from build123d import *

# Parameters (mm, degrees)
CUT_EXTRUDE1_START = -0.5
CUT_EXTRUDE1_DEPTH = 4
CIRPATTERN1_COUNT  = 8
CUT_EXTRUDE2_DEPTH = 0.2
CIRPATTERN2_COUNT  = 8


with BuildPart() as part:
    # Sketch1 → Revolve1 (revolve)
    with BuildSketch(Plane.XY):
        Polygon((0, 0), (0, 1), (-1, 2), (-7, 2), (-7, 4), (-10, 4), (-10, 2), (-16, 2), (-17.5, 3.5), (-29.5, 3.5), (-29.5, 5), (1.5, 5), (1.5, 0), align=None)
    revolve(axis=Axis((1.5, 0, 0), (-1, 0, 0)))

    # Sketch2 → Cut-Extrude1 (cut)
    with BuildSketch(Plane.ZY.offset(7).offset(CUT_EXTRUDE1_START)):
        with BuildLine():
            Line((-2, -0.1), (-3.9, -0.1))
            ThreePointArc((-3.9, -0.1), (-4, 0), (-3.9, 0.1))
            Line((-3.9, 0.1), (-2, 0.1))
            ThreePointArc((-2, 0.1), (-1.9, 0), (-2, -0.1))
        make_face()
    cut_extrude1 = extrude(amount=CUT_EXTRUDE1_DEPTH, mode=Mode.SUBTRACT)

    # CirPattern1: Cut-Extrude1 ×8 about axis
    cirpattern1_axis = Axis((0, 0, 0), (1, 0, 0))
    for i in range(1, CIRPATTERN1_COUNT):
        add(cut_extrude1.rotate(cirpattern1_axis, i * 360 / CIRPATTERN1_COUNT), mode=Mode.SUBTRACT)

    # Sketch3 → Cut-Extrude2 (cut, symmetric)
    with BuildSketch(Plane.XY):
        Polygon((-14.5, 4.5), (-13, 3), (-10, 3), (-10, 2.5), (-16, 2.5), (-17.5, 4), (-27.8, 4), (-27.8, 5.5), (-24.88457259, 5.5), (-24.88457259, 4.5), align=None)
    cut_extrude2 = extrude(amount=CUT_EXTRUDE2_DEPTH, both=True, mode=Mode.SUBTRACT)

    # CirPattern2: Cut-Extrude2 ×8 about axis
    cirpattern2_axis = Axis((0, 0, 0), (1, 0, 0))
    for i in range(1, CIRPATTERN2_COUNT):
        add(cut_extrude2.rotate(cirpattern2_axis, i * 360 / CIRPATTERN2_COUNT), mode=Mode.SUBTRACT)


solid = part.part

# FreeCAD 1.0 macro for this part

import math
import FreeCAD as App
import Part
import Sketcher
from FreeCAD import Vector
Q = App.Units.Quantity


def add_polygon(sketch, points):
    """Adds a closed chain of lines whose ends are joined by coincident constraints."""
    first, n = sketch.GeometryCount, len(points)
    for a, b in zip(points, points[1:] + points[:1]):
        sketch.addGeometry(Part.LineSegment(App.Vector(*a, 0), App.Vector(*b, 0)), False)
    for i in range(n):
        sketch.addConstraint(Sketcher.Constraint("Coincident", first + i, 2, first + (i + 1) % n, 1))

doc = App.newDocument("Part")
params = doc.addObject("Spreadsheet::Sheet", "Params")
for row, (alias, value) in enumerate([
    ("sketch1_width", "31 mm"),
    ("sketch1_width2", "12 mm"),
    ("sketch1_width3", "6 mm"),
    ("sketch1_width4", "3 mm"),
    ("sketch1_height", "1 mm"),
    ("revolution_angle", "360 deg"),
    ("sketch2_radius", "0.1 mm"),
    ("sketch2_height", "1.9 mm"),
    ("pocket1_length", "4 mm"),
    ("sketch3_width", "6 mm"),
    ("sketch3_width2", "3 mm"),
    ("sketch3_height", "1 mm"),
    ("sketch3_width3", "10.3 mm"),
    ("sketch3_height2", "1.5 mm"),
    ("pocket2_length", "0.4 mm"),
], start=1):
    params.set(f"A{row}", alias)
    params.set(f"B{row}", "=" + value)
    params.setAlias(f"B{row}", alias)

body = doc.addObject("PartDesign::Body", "Body")

sketch1 = body.newObject("Sketcher::SketchObject", "Sketch")
sketch1.AttachmentSupport = (doc.getObject("XY_Plane"), [""])
sketch1.MapMode = "FlatFace"
add_polygon(sketch1, [(0, 1), (0, 0), (1.5, 0), (1.5, 5), (-29.5, 5), (-29.5, 3.5), (-17.5, 3.5), (-16, 2), (-10, 2), (-10, 4), (-7, 4), (-7, 2), (-1, 2)])
sketch1.addConstraint(Sketcher.Constraint("Vertical", 0))
sketch1.addConstraint(Sketcher.Constraint("Horizontal", 1))
sketch1.addConstraint(Sketcher.Constraint("Vertical", 2))
sketch1.addConstraint(Sketcher.Constraint("Horizontal", 3))
sketch1.addConstraint(Sketcher.Constraint("Vertical", 4))
sketch1.addConstraint(Sketcher.Constraint("Horizontal", 5))
sketch1.addConstraint(Sketcher.Constraint("Horizontal", 7))
sketch1.addConstraint(Sketcher.Constraint("Vertical", 8))
sketch1.addConstraint(Sketcher.Constraint("Horizontal", 9))
sketch1.addConstraint(Sketcher.Constraint("Vertical", 10))
sketch1.addConstraint(Sketcher.Constraint("Horizontal", 11))
sketch1.addConstraint(Sketcher.Constraint("Coincident", 0, 2, -1, 1))
sketch1.addConstraint(Sketcher.Constraint("Parallel", 6, 12))
sketch1.addConstraint(Sketcher.Constraint("Horizontal", 7, 2, 10, 2))
sketch1.addConstraint(Sketcher.Constraint("Equal", 7, 11))
sketch1.addConstraint(Sketcher.Constraint("Equal", 1, 4))
sketch1.addConstraint(Sketcher.Constraint("DistanceX", 3, 2, 3, 1, 31.0))
sketch1.addConstraint(Sketcher.Constraint("DistanceX", 5, 1, 5, 2, 12.0))
sketch1.addConstraint(Sketcher.Constraint("DistanceX", 7, 1, 7, 2, 6.0))
sketch1.addConstraint(Sketcher.Constraint("DistanceX", 9, 1, 9, 2, 3.0))
sketch1.addConstraint(Sketcher.Constraint("DistanceY", 0, 2, 0, 1, 1.0))
sketch1.addConstraint(Sketcher.Constraint("DistanceY", 2, 1, 2, 2, 5.0))
sketch1.addConstraint(Sketcher.Constraint("DistanceY", 8, 1, 8, 2, 2.0))
sketch1.addConstraint(Sketcher.Constraint("DistanceX", 1, 1, 1, 2, 1.5))
sketch1.addConstraint(Sketcher.Constraint("DistanceX", 6, 2, -1, 1, 16.0))
sketch1.setExpression("Constraints[29]", "Params.sketch1_width")
sketch1.setExpression("Constraints[30]", "Params.sketch1_width2")
sketch1.setExpression("Constraints[31]", "Params.sketch1_width3")
sketch1.setExpression("Constraints[32]", "Params.sketch1_width4")
sketch1.setExpression("Constraints[33]", "Params.sketch1_height")
revolution = body.newObject("PartDesign::Revolution", "Revolution")
revolution.Profile = sketch1
revolution.ReferenceAxis = (sketch1, ["H_Axis"])
revolution.setExpression("Angle", "Params.revolution_angle")

sketch2 = body.newObject("Sketcher::SketchObject", "Sketch001")
sketch2.AttachmentSupport = (doc.getObject("YZ_Plane"), [""])
sketch2.MapMode = "FlatFace"
sketch2.AttachmentOffset = App.Placement(Vector(0, 0, -6.5), App.Rotation())
sketch2.addGeometry(Part.LineSegment(Vector(-0.1, -3.9, 0), Vector(-0.1, -2, 0)), False)
sketch2.addGeometry(Part.ArcOfCircle(Part.Circle(Vector(0, -2, 0), Vector(0, 0, 1), 0.1), math.radians(0), math.radians(180)), False)
sketch2.addGeometry(Part.LineSegment(Vector(0.1, -2, 0), Vector(0.1, -3.9, 0)), False)
sketch2.addGeometry(Part.ArcOfCircle(Part.Circle(Vector(0, -3.9, 0), Vector(0, 0, 1), 0.1), math.radians(180), math.radians(360)), False)
sketch2.addConstraint(Sketcher.Constraint("Tangent", 0, 2, 1, 2))
sketch2.addConstraint(Sketcher.Constraint("Tangent", 1, 1, 2, 1))
sketch2.addConstraint(Sketcher.Constraint("Tangent", 2, 2, 3, 2))
sketch2.addConstraint(Sketcher.Constraint("Tangent", 3, 1, 0, 1))
sketch2.addConstraint(Sketcher.Constraint("Vertical", 0))
sketch2.addConstraint(Sketcher.Constraint("Vertical", 2))
sketch2.addConstraint(Sketcher.Constraint("PointOnObject", 1, 3, -2))
sketch2.addConstraint(Sketcher.Constraint("Radius", 1, 0.1))
sketch2.addConstraint(Sketcher.Constraint("DistanceY", 0, 1, 0, 2, 1.9))
sketch2.addConstraint(Sketcher.Constraint("DistanceY", 1, 3, -1, 1, 2.0))
sketch2.setExpression("Constraints[7]", "Params.sketch2_radius")
sketch2.setExpression("Constraints[8]", "Params.sketch2_height")
pocket1 = body.newObject("PartDesign::Pocket", "Pocket")
pocket1.Profile = sketch2
pocket1.setExpression("Length", "Params.pocket1_length")
doc.recompute()

polarpattern = body.newObject("PartDesign::PolarPattern", "PolarPattern")
polarpattern.Originals = [pocket1]
polarpattern.Axis = (doc.getObject("X_Axis"), [""])
polarpattern.Angle = 360
polarpattern.Occurrences = 8
body.Tip = polarpattern

sketch3 = body.newObject("Sketcher::SketchObject", "Sketch002")
sketch3.AttachmentSupport = (doc.getObject("XY_Plane"), [""])
sketch3.MapMode = "FlatFace"
add_polygon(sketch3, [(-13, 3), (-14.5, 4.5), (-24.9, 4.5), (-24.9, 5.5), (-27.8, 5.5), (-27.8, 4), (-17.5, 4), (-16, 2.5), (-10, 2.5), (-10, 3)])
sketch3.addConstraint(Sketcher.Constraint("Horizontal", 1))
sketch3.addConstraint(Sketcher.Constraint("Vertical", 2))
sketch3.addConstraint(Sketcher.Constraint("Horizontal", 3))
sketch3.addConstraint(Sketcher.Constraint("Vertical", 4))
sketch3.addConstraint(Sketcher.Constraint("Horizontal", 5))
sketch3.addConstraint(Sketcher.Constraint("Horizontal", 7))
sketch3.addConstraint(Sketcher.Constraint("Vertical", 8))
sketch3.addConstraint(Sketcher.Constraint("Horizontal", 9))
sketch3.addConstraint(Sketcher.Constraint("Parallel", 0, 6))
sketch3.addConstraint(Sketcher.Constraint("Equal", 0, 6))
sketch3.addConstraint(Sketcher.Constraint("DistanceX", 7, 1, 7, 2, 6.0))
sketch3.addConstraint(Sketcher.Constraint("DistanceX", 9, 2, 9, 1, 3.0))
sketch3.addConstraint(Sketcher.Constraint("DistanceY", 2, 1, 2, 2, 1.0))
sketch3.addConstraint(Sketcher.Constraint("Angle", 0, Q("135 deg")))
sketch3.addConstraint(Sketcher.Constraint("DistanceX", 5, 1, 5, 2, 10.3))
sketch3.addConstraint(Sketcher.Constraint("DistanceY", 4, 2, 4, 1, 1.5))
sketch3.addConstraint(Sketcher.Constraint("DistanceY", -1, 1, 4, 2, 4.0))
sketch3.addConstraint(Sketcher.Constraint("DistanceX", 6, 2, -1, 1, 16.0))
sketch3.addConstraint(Sketcher.Constraint("DistanceY", -1, 1, 8, 2, 3.0))
sketch3.addConstraint(Sketcher.Constraint("DistanceX", 1, 2, 1, 1, 10.384573))
sketch3.setExpression("Constraints[20]", "Params.sketch3_width")
sketch3.setExpression("Constraints[21]", "Params.sketch3_width2")
sketch3.setExpression("Constraints[22]", "Params.sketch3_height")
sketch3.setExpression("Constraints[24]", "Params.sketch3_width3")
sketch3.setExpression("Constraints[25]", "Params.sketch3_height2")
pocket2 = body.newObject("PartDesign::Pocket", "Pocket001")
pocket2.Profile = sketch3
pocket2.setExpression("Length", "Params.pocket2_length")
pocket2.Midplane = True
doc.recompute()

polarpattern2 = body.newObject("PartDesign::PolarPattern", "PolarPattern001")
polarpattern2.Originals = [pocket2]
polarpattern2.Axis = (doc.getObject("X_Axis"), [""])
polarpattern2.Angle = 360
polarpattern2.Occurrences = 8
body.Tip = polarpattern2

doc.recompute()
